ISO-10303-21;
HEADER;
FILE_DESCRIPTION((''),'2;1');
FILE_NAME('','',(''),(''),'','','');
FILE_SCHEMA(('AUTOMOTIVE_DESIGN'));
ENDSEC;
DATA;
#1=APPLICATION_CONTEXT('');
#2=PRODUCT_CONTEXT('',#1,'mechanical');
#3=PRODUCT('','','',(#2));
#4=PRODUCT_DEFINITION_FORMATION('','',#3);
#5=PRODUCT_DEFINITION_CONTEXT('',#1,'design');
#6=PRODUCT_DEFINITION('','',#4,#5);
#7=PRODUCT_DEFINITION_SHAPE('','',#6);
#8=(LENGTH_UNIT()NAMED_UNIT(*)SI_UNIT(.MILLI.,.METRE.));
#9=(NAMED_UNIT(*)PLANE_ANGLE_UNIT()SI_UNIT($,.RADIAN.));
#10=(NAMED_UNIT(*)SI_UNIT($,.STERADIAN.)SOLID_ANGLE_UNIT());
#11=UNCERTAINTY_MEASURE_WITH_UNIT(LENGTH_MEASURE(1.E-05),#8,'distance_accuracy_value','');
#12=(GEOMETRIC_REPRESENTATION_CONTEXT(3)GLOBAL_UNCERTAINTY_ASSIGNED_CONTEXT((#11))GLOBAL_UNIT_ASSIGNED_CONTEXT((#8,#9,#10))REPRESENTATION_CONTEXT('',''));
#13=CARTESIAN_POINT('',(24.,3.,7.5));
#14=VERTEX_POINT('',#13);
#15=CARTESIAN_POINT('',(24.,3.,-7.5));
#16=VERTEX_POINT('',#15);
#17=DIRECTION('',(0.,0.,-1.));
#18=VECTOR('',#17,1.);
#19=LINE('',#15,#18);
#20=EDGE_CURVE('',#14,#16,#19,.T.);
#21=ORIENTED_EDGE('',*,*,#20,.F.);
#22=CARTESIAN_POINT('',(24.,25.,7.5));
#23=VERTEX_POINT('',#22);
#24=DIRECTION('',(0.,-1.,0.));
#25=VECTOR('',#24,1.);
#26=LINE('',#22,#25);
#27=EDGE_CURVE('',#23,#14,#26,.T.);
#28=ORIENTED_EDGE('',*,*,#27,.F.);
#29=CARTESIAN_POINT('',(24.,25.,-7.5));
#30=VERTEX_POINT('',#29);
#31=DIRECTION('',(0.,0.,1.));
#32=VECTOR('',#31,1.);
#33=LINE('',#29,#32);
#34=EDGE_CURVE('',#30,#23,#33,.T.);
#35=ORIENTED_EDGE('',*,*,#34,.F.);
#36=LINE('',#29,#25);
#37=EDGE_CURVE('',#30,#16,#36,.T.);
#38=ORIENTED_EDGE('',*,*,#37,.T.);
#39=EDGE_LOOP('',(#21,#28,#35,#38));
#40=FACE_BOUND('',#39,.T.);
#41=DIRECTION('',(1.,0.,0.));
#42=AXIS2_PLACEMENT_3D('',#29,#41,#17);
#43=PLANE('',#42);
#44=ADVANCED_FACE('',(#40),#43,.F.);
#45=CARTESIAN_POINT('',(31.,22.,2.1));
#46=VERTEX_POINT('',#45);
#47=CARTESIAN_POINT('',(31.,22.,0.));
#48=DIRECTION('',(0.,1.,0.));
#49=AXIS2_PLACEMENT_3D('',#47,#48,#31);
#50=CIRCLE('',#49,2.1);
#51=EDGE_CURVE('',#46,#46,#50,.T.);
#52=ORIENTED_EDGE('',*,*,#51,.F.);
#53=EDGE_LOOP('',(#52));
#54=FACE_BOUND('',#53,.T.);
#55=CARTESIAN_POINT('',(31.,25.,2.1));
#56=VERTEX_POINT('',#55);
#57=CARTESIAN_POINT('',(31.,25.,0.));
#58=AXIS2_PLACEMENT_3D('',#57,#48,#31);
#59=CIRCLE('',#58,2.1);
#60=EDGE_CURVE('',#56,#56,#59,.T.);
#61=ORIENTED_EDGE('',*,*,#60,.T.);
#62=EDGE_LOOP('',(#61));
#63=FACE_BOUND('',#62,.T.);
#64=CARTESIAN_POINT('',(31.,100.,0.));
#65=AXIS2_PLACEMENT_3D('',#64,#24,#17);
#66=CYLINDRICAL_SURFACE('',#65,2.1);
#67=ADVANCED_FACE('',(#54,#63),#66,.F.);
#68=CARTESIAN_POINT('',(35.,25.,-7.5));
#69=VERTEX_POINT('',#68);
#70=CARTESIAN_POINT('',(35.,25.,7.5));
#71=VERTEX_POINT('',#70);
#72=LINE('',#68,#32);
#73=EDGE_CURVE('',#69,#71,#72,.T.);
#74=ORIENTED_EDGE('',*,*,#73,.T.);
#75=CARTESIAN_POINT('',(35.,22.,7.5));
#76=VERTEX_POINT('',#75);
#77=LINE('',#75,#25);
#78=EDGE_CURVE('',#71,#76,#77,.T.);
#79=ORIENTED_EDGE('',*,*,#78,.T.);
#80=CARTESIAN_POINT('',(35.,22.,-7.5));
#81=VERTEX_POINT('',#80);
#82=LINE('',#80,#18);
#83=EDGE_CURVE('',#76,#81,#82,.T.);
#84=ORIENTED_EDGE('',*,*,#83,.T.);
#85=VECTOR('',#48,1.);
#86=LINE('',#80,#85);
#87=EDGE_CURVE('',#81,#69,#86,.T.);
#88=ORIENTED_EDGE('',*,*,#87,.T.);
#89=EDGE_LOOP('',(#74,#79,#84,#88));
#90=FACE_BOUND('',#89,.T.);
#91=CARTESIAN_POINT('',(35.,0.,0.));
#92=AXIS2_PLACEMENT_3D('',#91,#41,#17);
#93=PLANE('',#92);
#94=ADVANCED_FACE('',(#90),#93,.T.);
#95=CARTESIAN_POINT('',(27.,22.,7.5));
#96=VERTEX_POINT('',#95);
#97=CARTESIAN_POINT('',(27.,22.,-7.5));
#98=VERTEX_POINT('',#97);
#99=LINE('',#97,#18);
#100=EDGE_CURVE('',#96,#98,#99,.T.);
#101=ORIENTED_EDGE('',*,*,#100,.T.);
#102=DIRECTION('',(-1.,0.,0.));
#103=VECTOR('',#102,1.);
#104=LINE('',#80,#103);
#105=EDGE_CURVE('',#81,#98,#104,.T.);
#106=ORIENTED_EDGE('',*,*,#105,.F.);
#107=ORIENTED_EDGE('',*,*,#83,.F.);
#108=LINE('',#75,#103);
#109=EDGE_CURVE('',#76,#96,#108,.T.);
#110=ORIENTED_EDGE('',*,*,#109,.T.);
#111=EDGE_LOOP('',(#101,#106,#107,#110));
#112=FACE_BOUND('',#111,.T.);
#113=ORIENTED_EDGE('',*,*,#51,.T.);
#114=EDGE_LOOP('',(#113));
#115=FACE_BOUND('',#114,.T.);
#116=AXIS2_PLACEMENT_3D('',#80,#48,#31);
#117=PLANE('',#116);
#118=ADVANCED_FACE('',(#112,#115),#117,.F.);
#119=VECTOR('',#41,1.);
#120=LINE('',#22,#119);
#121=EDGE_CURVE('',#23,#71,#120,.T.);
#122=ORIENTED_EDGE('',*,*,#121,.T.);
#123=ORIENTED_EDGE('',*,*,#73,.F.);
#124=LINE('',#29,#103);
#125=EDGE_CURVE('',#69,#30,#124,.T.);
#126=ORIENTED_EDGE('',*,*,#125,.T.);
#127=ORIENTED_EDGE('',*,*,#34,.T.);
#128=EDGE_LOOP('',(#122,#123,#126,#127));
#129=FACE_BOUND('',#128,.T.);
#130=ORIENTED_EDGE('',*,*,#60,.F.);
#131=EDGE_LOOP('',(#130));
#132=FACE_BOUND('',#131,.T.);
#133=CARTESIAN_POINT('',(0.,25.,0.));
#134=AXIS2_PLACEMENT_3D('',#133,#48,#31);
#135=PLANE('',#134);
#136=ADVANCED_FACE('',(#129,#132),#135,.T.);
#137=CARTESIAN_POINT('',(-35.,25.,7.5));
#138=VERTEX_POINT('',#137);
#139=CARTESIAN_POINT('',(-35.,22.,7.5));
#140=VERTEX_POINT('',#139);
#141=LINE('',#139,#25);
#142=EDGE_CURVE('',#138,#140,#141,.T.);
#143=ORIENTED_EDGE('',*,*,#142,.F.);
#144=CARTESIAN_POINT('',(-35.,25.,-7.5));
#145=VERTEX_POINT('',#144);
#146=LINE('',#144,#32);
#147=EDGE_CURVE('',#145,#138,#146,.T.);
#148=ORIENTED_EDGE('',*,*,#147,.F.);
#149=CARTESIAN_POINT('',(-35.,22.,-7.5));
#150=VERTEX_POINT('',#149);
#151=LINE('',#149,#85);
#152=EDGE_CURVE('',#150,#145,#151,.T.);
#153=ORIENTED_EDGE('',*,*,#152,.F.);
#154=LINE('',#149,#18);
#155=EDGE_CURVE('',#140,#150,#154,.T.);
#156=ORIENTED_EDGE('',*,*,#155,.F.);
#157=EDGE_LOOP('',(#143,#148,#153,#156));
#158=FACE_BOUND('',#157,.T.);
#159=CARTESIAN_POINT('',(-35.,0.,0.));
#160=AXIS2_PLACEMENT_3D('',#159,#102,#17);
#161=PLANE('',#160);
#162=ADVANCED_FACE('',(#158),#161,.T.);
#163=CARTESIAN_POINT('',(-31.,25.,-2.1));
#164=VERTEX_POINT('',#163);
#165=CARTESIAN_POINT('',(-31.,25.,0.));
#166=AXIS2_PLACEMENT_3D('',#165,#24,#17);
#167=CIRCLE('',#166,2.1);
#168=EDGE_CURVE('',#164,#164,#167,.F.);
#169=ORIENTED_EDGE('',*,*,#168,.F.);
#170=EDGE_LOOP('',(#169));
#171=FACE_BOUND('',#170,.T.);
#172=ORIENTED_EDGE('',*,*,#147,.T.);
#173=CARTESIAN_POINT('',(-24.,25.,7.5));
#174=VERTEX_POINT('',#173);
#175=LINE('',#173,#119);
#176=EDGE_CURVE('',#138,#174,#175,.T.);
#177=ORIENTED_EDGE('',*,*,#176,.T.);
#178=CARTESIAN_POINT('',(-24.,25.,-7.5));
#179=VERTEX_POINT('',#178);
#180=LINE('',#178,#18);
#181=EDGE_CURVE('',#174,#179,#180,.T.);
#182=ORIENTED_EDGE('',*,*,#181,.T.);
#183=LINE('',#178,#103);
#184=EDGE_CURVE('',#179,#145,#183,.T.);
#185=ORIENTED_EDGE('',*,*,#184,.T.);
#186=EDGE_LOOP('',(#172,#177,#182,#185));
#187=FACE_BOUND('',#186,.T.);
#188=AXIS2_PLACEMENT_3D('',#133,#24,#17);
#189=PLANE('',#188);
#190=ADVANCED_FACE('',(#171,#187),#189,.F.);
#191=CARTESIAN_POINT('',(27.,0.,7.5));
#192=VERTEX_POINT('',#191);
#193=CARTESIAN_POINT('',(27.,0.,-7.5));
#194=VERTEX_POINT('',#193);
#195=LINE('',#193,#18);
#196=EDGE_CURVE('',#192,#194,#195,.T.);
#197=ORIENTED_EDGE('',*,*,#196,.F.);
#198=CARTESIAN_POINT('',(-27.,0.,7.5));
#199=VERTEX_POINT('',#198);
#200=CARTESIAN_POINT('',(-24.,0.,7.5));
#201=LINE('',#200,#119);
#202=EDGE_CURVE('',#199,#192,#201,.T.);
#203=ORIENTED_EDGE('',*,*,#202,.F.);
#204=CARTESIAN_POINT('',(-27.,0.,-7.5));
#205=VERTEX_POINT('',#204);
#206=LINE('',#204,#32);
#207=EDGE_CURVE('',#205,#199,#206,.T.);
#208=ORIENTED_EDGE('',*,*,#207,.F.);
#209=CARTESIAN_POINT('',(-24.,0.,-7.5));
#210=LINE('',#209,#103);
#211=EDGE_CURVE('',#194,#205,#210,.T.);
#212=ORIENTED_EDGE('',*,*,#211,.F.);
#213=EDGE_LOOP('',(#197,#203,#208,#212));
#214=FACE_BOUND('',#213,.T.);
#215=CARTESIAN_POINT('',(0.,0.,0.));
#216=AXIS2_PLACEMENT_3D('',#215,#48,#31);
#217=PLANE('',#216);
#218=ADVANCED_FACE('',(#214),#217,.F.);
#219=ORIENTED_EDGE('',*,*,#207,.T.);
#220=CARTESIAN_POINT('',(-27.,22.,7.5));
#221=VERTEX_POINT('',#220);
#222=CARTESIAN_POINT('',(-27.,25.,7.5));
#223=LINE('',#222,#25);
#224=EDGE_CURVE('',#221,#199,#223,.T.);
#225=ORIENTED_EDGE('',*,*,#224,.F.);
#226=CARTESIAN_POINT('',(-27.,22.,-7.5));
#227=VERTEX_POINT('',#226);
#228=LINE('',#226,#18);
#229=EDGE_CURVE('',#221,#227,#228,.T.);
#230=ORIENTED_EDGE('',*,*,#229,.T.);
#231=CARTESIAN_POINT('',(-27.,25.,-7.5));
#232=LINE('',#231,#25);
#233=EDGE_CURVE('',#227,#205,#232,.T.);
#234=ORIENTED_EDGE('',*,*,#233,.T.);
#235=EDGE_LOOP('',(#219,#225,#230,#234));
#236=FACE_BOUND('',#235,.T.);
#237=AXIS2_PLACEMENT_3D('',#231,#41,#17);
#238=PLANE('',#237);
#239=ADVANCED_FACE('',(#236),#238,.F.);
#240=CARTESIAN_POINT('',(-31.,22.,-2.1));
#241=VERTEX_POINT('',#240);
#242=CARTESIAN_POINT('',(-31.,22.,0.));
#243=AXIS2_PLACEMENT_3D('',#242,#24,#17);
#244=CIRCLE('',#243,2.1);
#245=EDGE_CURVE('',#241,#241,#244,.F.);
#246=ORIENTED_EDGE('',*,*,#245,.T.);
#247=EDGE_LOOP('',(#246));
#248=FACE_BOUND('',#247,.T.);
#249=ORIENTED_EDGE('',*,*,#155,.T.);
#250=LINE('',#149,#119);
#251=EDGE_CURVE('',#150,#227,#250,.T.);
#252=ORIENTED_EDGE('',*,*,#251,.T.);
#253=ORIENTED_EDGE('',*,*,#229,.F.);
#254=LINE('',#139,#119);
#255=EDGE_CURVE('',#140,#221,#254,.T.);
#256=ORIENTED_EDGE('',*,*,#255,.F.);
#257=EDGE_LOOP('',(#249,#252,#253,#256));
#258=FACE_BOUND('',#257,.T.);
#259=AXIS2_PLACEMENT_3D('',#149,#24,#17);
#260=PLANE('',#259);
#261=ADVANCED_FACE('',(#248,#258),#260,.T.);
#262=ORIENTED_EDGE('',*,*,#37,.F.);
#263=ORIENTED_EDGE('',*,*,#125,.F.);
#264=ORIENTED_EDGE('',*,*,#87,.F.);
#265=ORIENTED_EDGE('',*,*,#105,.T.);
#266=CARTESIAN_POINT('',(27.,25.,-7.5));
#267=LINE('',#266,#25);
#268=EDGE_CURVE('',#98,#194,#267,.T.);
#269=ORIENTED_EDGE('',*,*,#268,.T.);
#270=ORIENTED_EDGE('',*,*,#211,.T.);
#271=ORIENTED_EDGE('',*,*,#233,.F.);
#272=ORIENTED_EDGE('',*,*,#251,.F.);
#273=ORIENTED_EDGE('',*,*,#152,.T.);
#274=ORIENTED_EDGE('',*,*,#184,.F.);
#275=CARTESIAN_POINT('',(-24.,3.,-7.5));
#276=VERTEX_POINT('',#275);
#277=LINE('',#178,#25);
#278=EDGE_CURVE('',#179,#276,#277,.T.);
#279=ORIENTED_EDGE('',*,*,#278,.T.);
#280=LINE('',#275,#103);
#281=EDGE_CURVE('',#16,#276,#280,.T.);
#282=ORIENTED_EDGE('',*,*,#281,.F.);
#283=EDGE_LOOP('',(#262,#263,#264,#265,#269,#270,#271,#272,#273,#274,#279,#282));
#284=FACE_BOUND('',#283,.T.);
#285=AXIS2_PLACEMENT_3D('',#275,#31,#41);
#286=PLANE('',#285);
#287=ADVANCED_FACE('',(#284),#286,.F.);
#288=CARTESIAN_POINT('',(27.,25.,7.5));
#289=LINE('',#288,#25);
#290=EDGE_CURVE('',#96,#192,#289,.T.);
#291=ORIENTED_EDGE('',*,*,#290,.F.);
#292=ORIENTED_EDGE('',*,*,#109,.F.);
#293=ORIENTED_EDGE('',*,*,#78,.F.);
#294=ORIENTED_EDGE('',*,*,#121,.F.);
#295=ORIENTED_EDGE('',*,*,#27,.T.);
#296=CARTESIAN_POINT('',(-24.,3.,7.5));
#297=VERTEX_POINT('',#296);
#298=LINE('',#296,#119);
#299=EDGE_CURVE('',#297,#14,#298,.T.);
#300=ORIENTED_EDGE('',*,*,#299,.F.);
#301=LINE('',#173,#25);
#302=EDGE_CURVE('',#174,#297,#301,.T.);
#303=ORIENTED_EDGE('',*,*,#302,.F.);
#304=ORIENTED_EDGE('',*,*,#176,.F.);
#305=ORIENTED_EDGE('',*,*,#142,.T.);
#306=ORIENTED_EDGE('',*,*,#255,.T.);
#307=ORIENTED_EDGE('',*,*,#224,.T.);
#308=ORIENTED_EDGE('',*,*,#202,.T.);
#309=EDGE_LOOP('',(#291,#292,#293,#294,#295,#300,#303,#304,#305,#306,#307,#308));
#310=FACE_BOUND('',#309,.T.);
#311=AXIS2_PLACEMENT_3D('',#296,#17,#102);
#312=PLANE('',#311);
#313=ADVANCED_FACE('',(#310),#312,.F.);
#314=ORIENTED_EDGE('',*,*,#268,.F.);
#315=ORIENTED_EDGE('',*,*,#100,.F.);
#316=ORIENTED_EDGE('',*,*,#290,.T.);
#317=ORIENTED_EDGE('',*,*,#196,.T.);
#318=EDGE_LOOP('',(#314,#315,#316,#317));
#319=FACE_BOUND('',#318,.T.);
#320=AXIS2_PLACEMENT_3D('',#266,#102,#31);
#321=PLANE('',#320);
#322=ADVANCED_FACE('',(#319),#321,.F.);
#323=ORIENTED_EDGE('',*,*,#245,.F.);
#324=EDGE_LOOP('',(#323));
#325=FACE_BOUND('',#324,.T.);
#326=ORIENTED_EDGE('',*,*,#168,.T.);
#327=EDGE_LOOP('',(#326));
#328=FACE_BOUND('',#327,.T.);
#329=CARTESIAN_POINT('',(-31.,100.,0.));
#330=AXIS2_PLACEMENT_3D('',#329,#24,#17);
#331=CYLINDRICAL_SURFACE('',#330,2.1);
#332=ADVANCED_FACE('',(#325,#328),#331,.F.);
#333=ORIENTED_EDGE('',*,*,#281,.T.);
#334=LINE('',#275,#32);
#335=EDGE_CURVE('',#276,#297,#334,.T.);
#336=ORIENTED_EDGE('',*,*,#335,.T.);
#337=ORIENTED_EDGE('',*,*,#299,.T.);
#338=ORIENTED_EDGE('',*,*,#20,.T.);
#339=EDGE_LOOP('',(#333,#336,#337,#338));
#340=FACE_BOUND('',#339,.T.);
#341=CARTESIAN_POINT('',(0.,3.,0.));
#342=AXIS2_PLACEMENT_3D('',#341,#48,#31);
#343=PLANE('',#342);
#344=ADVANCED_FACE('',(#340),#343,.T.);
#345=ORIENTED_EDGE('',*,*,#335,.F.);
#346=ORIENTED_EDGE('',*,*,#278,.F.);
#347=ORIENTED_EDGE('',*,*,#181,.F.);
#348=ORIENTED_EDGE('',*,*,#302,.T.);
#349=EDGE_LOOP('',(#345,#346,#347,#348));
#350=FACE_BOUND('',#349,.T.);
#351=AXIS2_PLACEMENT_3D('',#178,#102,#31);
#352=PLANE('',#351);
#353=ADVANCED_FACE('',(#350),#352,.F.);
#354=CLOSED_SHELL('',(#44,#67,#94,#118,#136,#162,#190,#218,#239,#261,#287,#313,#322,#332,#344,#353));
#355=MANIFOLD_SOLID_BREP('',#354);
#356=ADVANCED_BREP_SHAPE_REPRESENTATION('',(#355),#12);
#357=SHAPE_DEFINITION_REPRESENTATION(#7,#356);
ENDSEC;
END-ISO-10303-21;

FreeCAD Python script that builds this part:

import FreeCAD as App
import Part
import Sketcher
from FreeCAD import Vector


def add_polygon(sketch, points):
    """Adds a closed chain of lines whose ends are joined by coincident constraints."""
    first, n = sketch.GeometryCount, len(points)
    for a, b in zip(points, points[1:] + points[:1]):
        sketch.addGeometry(Part.LineSegment(App.Vector(*a, 0), App.Vector(*b, 0)), False)
    for i in range(n):
        sketch.addConstraint(Sketcher.Constraint("Coincident", first + i, 2, first + (i + 1) % n, 1))

doc = App.newDocument("Part")
params = doc.addObject("Spreadsheet::Sheet", "Params")
for row, (alias, value) in enumerate([
    ("sketch1_width", "48 mm"),
    ("sketch1_height", "15 mm"),
    ("pad1_length", "3 mm"),
    ("sketch2_width", "3 mm"),
    ("sketch2_height", "15 mm"),
    ("pad2_length", "25 mm"),
    ("sketch3_width", "3 mm"),
    ("sketch3_height", "15 mm"),
    ("pad3_length", "8 mm"),
    ("sketch4_diameter", "4.2 mm"),
    ("pocket1_length", "100 mm"),
], start=1):
    params.set(f"A{row}", alias)
    params.set(f"B{row}", "=" + value)
    params.setAlias(f"B{row}", alias)

body = doc.addObject("PartDesign::Body", "Body")

# Sketch on XZ plane
sketch1 = body.newObject("Sketcher::SketchObject", "Sketch")
sketch1.AttachmentSupport = (doc.getObject("XZ_Plane"), [""])
sketch1.MapMode = "FlatFace"
add_polygon(sketch1, [(-24, -8), (-24, 8), (24, 8), (24, -8)])  # lines 0-3
sketch1.addConstraint(Sketcher.Constraint("Vertical", 0))
sketch1.addConstraint(Sketcher.Constraint("Horizontal", 1))
sketch1.addConstraint(Sketcher.Constraint("Vertical", 2))
sketch1.addConstraint(Sketcher.Constraint("Horizontal", 3))
sketch1.addConstraint(Sketcher.Constraint("Symmetric", 0, 2, 2, 2, -1, 1))
sketch1.addConstraint(Sketcher.Constraint("DistanceX", 1, 1, 1, 2, 48.0))
sketch1.addConstraint(Sketcher.Constraint("DistanceY", 0, 1, 0, 2, 15.0))
sketch1.setExpression("Constraints[9]", "Params.sketch1_width")
sketch1.setExpression("Constraints[10]", "Params.sketch1_height")
pad1 = body.newObject("PartDesign::Pad", "Pad")
pad1.Profile = sketch1
pad1.setExpression("Length", "Params.pad1_length")
pad1.Reversed = True

# Sketch on XZ plane
sketch2 = body.newObject("Sketcher::SketchObject", "Sketch001")
sketch2.AttachmentSupport = (doc.getObject("XZ_Plane"), [""])
sketch2.MapMode = "FlatFace"
add_polygon(sketch2, [(24, -7.5), (24, 7.5), (27, 7.5), (27, -7.5)])  # lines 0-3
add_polygon(sketch2, [(-27, -7.5), (-27, 7.5), (-24, 7.5), (-24, -7.5)])  # lines 4-7
sketch2.addConstraint(Sketcher.Constraint("Vertical", 0))
sketch2.addConstraint(Sketcher.Constraint("Horizontal", 1))
sketch2.addConstraint(Sketcher.Constraint("Vertical", 2))
sketch2.addConstraint(Sketcher.Constraint("Horizontal", 3))
sketch2.addConstraint(Sketcher.Constraint("Vertical", 4))
sketch2.addConstraint(Sketcher.Constraint("Horizontal", 5))
sketch2.addConstraint(Sketcher.Constraint("Vertical", 6))
sketch2.addConstraint(Sketcher.Constraint("Horizontal", 7))
sketch2.addConstraint(Sketcher.Constraint("Symmetric", 2, 2, 4, 2, -1, 1))
sketch2.addConstraint(Sketcher.Constraint("Symmetric", 0, 2, 6, 2, -1, 1))
sketch2.addConstraint(Sketcher.Constraint("Horizontal", 1, 2, 4, 2))
sketch2.addConstraint(Sketcher.Constraint("DistanceX", 1, 1, 1, 2, 3.0))
sketch2.addConstraint(Sketcher.Constraint("DistanceY", 0, 1, 0, 2, 15.0))
sketch2.addConstraint(Sketcher.Constraint("DistanceX", -1, 1, 0, 2, 24.0))
sketch2.setExpression("Constraints[19]", "Params.sketch2_width")
sketch2.setExpression("Constraints[20]", "Params.sketch2_height")
pad2 = body.newObject("PartDesign::Pad", "Pad001")
pad2.Profile = sketch2
pad2.setExpression("Length", "Params.pad2_length")
pad2.Reversed = True

# Sketch on YZ plane
sketch3 = body.newObject("Sketcher::SketchObject", "Sketch002")
sketch3.AttachmentSupport = (doc.getObject("YZ_Plane"), [""])
sketch3.MapMode = "FlatFace"
sketch3.AttachmentOffset = App.Placement(Vector(0, 0, 27), App.Rotation())
add_polygon(sketch3, [(25, 7.5), (22, 7.5), (22, -7.5), (25, -7.5)])  # lines 0-3
sketch3.addConstraint(Sketcher.Constraint("Horizontal", 0))
sketch3.addConstraint(Sketcher.Constraint("Vertical", 1))
sketch3.addConstraint(Sketcher.Constraint("Horizontal", 2))
sketch3.addConstraint(Sketcher.Constraint("Vertical", 3))
sketch3.addConstraint(Sketcher.Constraint("DistanceX", 0, 2, 0, 1, 3.0))
sketch3.addConstraint(Sketcher.Constraint("DistanceY", 1, 2, 1, 1, 15.0))
sketch3.addConstraint(Sketcher.Constraint("DistanceX", -1, 1, 0, 2, 22.0))
sketch3.addConstraint(Sketcher.Constraint("DistanceY", -1, 1, 0, 2, 7.5))
sketch3.setExpression("Constraints[8]", "Params.sketch3_width")
sketch3.setExpression("Constraints[9]", "Params.sketch3_height")
pad3 = body.newObject("PartDesign::Pad", "Pad002")
pad3.Profile = sketch3
pad3.setExpression("Length", "Params.pad3_length")
doc.recompute()

mirrored = body.newObject("PartDesign::Mirrored", "Mirrored")
mirrored.Originals = [pad3]
mirrored.MirrorPlane = (doc.getObject("YZ_Plane"), [""])
body.Tip = mirrored

# Sketch on XZ plane
sketch4 = body.newObject("Sketcher::SketchObject", "Sketch003")
sketch4.AttachmentSupport = (doc.getObject("XZ_Plane"), [""])
sketch4.MapMode = "FlatFace"
sketch4.addGeometry(Part.Circle(Vector(-31, 0, 0), Vector(0, 0, 1), 2.1), False)
sketch4.addConstraint(Sketcher.Constraint("PointOnObject", 0, 3, -1))
sketch4.addConstraint(Sketcher.Constraint("Diameter", 0, 4.2))
sketch4.addConstraint(Sketcher.Constraint("DistanceX", 0, 3, -1, 1, 31.0))
sketch4.setExpression("Constraints[1]", "Params.sketch4_diameter")
pocket1 = body.newObject("PartDesign::Pocket", "Pocket")
pocket1.Profile = sketch4
pocket1.setExpression("Length", "Params.pocket1_length")
doc.recompute()

mirrored2 = body.newObject("PartDesign::Mirrored", "Mirrored001")
mirrored2.Originals = [pocket1]
mirrored2.MirrorPlane = (doc.getObject("YZ_Plane"), [""])
body.Tip = mirrored2

doc.recompute()
